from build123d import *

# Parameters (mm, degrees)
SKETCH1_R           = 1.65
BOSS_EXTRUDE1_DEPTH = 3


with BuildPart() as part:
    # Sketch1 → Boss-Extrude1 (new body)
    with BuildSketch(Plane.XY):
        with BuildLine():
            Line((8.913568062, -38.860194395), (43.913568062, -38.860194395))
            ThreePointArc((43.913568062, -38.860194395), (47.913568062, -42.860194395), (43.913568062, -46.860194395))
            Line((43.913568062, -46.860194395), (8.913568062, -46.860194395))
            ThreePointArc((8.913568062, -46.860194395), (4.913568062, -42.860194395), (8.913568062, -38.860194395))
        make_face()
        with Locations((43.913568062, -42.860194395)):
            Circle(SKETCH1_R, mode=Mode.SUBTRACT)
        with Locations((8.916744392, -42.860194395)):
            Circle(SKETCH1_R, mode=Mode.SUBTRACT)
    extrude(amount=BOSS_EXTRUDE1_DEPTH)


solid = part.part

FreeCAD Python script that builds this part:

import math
import FreeCAD as App
import Part
import Sketcher

doc = App.newDocument("Part")
body = doc.addObject("PartDesign::Body", "Body")

# Sketch on XY plane
sketch1 = doc.addObject("Sketcher::SketchObject", "Sketch")
body.addObject(sketch1)
sketch1.AttachmentSupport = (doc.XY_Plane, [""])
sketch1.MapMode = "FlatFace"
sketch1.addGeometry(Part.LineSegment(App.Vector(43.9, -38.9, 0), App.Vector(8.9, -38.9, 0)), False)
sketch1.addGeometry(Part.ArcOfCircle(Part.Circle(App.Vector(8.9, -42.9, 0), App.Vector(0, 0, 1), 4), math.radians(90), math.radians(270)), False)
sketch1.addGeometry(Part.LineSegment(App.Vector(8.9, -46.9, 0), App.Vector(43.9, -46.9, 0)), False)
sketch1.addGeometry(Part.ArcOfCircle(Part.Circle(App.Vector(43.9, -42.9, 0), App.Vector(0, 0, 1), 4), math.radians(-90), math.radians(90)), False)
sketch1.addGeometry(Part.Circle(App.Vector(43.9, -42.9, 0), App.Vector(0, 0, 1), 1.6), False)
sketch1.addGeometry(Part.Circle(App.Vector(8.9, -42.9, 0), App.Vector(0, 0, 1), 1.6), False)
sketch1.addConstraint(Sketcher.Constraint("Tangent", 0, 2, 1, 1))
sketch1.addConstraint(Sketcher.Constraint("Tangent", 1, 2, 2, 1))
sketch1.addConstraint(Sketcher.Constraint("Tangent", 2, 2, 3, 1))
sketch1.addConstraint(Sketcher.Constraint("Tangent", 3, 2, 0, 1))
sketch1.addConstraint(Sketcher.Constraint("Horizontal", 0))
sketch1.addConstraint(Sketcher.Constraint("Horizontal", 2))
sketch1.addConstraint(Sketcher.Constraint("Coincident", 4, 3, 3, 3))
sketch1.addConstraint(Sketcher.Constraint("Equal", 4, 5))
sketch1.addConstraint(Sketcher.Constraint("Horizontal", 4, 3, 5, 3))
sketch1.addConstraint(Sketcher.Constraint("Radius", 1, 4.0))
sketch1.addConstraint(Sketcher.Constraint("Diameter", 4, 3.3))
sketch1.addConstraint(Sketcher.Constraint("DistanceX", 0, 2, 0, 1, 35.0))
sketch1.addConstraint(Sketcher.Constraint("DistanceX", -1, 1, 1, 3, 8.913568))
sketch1.addConstraint(Sketcher.Constraint("DistanceY", 1, 3, -1, 1, 42.860194))
sketch1.addConstraint(Sketcher.Constraint("DistanceX", -1, 1, 5, 3, 8.916744))
pad1 = doc.addObject("PartDesign::Pad", "Pad")
body.addObject(pad1)
pad1.Profile = sketch1
pad1.Length = 3

doc.recompute()
